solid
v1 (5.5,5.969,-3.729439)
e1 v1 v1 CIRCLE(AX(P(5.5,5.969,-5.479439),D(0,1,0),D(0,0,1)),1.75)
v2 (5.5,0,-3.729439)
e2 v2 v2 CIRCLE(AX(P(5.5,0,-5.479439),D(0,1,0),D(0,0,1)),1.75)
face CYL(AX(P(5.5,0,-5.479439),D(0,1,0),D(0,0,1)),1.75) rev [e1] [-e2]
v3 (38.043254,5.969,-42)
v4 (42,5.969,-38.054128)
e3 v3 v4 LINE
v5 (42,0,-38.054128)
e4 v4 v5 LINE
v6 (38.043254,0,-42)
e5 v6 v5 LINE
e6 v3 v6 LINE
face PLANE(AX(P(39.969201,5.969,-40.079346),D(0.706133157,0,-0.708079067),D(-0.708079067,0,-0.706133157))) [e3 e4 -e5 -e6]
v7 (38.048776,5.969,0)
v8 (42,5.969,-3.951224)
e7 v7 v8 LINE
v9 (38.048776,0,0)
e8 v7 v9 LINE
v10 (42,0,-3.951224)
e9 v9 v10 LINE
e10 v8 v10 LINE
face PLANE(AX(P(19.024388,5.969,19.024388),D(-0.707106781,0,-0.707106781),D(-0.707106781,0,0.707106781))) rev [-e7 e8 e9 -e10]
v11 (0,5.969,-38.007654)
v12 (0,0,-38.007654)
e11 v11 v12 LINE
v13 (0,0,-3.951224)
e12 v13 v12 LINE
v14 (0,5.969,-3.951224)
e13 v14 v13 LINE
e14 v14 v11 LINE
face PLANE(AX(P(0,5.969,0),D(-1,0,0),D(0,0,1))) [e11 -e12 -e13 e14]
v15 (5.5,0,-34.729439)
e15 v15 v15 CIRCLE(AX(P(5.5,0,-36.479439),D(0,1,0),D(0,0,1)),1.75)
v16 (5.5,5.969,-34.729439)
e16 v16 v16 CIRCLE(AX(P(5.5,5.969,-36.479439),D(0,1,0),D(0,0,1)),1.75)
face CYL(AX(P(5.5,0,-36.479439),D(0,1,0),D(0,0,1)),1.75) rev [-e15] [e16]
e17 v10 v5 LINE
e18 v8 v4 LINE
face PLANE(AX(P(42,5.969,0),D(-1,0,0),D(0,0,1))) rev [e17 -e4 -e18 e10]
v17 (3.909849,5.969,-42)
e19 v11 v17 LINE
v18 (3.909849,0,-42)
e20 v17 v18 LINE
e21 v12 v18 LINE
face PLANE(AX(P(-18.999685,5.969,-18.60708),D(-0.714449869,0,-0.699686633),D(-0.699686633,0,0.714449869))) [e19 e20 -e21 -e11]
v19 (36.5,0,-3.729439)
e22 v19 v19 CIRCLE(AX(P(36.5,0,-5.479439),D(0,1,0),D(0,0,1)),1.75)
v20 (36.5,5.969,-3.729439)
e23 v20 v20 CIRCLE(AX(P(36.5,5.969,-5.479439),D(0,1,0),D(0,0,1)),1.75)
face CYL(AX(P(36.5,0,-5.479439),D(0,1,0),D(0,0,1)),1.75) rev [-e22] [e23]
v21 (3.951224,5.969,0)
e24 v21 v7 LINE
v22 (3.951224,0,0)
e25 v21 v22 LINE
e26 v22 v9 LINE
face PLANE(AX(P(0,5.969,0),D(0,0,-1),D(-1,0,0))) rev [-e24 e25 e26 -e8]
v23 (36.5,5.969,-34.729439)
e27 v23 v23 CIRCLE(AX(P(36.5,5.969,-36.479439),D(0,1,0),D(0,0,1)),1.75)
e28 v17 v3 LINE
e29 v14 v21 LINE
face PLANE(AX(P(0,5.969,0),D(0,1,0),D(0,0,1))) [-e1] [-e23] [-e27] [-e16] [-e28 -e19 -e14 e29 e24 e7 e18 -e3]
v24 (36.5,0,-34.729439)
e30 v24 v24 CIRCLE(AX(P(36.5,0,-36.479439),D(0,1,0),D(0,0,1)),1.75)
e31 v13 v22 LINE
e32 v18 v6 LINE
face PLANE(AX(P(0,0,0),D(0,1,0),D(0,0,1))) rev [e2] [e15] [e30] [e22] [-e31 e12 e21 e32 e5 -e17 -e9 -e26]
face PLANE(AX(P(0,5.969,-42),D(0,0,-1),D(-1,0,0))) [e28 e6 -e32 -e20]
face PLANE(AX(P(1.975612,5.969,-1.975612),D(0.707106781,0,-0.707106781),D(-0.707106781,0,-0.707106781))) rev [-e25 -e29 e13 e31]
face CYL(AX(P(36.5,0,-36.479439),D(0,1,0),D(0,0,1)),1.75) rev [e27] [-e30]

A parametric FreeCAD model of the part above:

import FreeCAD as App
import Part
import Sketcher
Q = App.Units.Quantity


def add_polygon(sketch, points):
    """Adds a closed chain of lines whose ends are joined by coincident constraints."""
    first, n = sketch.GeometryCount, len(points)
    for a, b in zip(points, points[1:] + points[:1]):
        sketch.addGeometry(Part.LineSegment(App.Vector(*a, 0), App.Vector(*b, 0)), False)
    for i in range(n):
        sketch.addConstraint(Sketcher.Constraint("Coincident", first + i, 2, first + (i + 1) % n, 1))

doc = App.newDocument("Part")
body = doc.addObject("PartDesign::Body", "Body")

# Sketch on XZ plane
sketch1 = body.newObject("Sketcher::SketchObject", "Sketch")
sketch1.AttachmentSupport = (doc.getObject("XZ_Plane"), [""])
sketch1.MapMode = "FlatFace"
add_polygon(sketch1, [(4, -42), (0, -38), (0, -4), (4, 0), (38, 0), (42, -4), (42, -38), (38, -42)])  # lines 0-7
sketch1.addConstraint(Sketcher.Constraint("Vertical", 1))
sketch1.addConstraint(Sketcher.Constraint("Horizontal", 3))
sketch1.addConstraint(Sketcher.Constraint("Vertical", 5))
sketch1.addConstraint(Sketcher.Constraint("Horizontal", 7))
sketch1.addConstraint(Sketcher.Constraint("PointOnObject", 0, 2, -2))
sketch1.addConstraint(Sketcher.Constraint("PointOnObject", 2, 2, -1))
sketch1.addConstraint(Sketcher.Constraint("Perpendicular", 2, 4))
sketch1.addConstraint(Sketcher.Constraint("Horizontal", 1, 2, 4, 2))
sketch1.addConstraint(Sketcher.Constraint("Equal", 2, 4))
sketch1.addConstraint(Sketcher.Constraint("Equal", 0, 6))
sketch1.addConstraint(Sketcher.Constraint("Distance", 0, Q("0.22 in")))
sketch1.addConstraint(Sketcher.Constraint("DistanceX", 3, 1, 3, 2, 34.097552))
sketch1.addConstraint(Sketcher.Constraint("DistanceY", 1, 1, 1, 2, 34.05643))
sketch1.addConstraint(Sketcher.Constraint("DistanceX", -1, 1, 4, 2, 42.0))
sketch1.addConstraint(Sketcher.Constraint("DistanceY", 6, 2, -1, 1, 42.0))
sketch1.addConstraint(Sketcher.Constraint("DistanceX", 7, 2, 7, 1, 34.133405))
pad1 = body.newObject("PartDesign::Pad", "Pad")
pad1.Profile = sketch1
pad1.Length = Q("0.235 in")
pad1.Reversed = True

# Sketch on XZ plane
sketch2 = body.newObject("Sketcher::SketchObject", "Sketch001")
sketch2.AttachmentSupport = (doc.getObject("XZ_Plane"), [""])
sketch2.MapMode = "FlatFace"
sketch2.AttachmentOffset = App.Placement(App.Vector(0, 0, -0.235 * 25.4), App.Rotation())
sketch2.addGeometry(Part.Circle(App.Vector(5.5, -36.5, 0), App.Vector(0, 0, 1), 1.8), False)
sketch2.addGeometry(Part.Circle(App.Vector(36.5, -36.5, 0), App.Vector(0, 0, 1), 1.8), False)
sketch2.addGeometry(Part.Circle(App.Vector(36.5, -5.5, 0), App.Vector(0, 0, 1), 1.8), False)
sketch2.addGeometry(Part.Circle(App.Vector(5.5, -5.5, 0), App.Vector(0, 0, 1), 1.8), False)
sketch2.addConstraint(Sketcher.Constraint("Equal", 0, 1))
sketch2.addConstraint(Sketcher.Constraint("Equal", 1, 2))
sketch2.addConstraint(Sketcher.Constraint("Equal", 2, 3))
sketch2.addConstraint(Sketcher.Constraint("Horizontal", 0, 3, 1, 3))
sketch2.addConstraint(Sketcher.Constraint("Horizontal", 2, 3, 3, 3))
sketch2.addConstraint(Sketcher.Constraint("Vertical", 1, 3, 2, 3))
sketch2.addConstraint(Sketcher.Constraint("Vertical", 0, 3, 3, 3))
sketch2.addConstraint(Sketcher.Constraint("Diameter", 0, 3.5))
sketch2.addConstraint(Sketcher.Constraint("DistanceX", -1, 1, 0, 3, 5.5))
sketch2.addConstraint(Sketcher.Constraint("DistanceX", -1, 1, 1, 3, 36.5))
sketch2.addConstraint(Sketcher.Constraint("DistanceY", 1, 3, 2, 3, 31.0))
sketch2.addConstraint(Sketcher.Constraint("DistanceY", 0, 3, -1, 1, 36.479439))
pocket1 = body.newObject("PartDesign::Pocket", "Pocket")
pocket1.Profile = sketch2
pocket1.Length = Q("0.235 in")
pocket1.Reversed = True

doc.recompute()
